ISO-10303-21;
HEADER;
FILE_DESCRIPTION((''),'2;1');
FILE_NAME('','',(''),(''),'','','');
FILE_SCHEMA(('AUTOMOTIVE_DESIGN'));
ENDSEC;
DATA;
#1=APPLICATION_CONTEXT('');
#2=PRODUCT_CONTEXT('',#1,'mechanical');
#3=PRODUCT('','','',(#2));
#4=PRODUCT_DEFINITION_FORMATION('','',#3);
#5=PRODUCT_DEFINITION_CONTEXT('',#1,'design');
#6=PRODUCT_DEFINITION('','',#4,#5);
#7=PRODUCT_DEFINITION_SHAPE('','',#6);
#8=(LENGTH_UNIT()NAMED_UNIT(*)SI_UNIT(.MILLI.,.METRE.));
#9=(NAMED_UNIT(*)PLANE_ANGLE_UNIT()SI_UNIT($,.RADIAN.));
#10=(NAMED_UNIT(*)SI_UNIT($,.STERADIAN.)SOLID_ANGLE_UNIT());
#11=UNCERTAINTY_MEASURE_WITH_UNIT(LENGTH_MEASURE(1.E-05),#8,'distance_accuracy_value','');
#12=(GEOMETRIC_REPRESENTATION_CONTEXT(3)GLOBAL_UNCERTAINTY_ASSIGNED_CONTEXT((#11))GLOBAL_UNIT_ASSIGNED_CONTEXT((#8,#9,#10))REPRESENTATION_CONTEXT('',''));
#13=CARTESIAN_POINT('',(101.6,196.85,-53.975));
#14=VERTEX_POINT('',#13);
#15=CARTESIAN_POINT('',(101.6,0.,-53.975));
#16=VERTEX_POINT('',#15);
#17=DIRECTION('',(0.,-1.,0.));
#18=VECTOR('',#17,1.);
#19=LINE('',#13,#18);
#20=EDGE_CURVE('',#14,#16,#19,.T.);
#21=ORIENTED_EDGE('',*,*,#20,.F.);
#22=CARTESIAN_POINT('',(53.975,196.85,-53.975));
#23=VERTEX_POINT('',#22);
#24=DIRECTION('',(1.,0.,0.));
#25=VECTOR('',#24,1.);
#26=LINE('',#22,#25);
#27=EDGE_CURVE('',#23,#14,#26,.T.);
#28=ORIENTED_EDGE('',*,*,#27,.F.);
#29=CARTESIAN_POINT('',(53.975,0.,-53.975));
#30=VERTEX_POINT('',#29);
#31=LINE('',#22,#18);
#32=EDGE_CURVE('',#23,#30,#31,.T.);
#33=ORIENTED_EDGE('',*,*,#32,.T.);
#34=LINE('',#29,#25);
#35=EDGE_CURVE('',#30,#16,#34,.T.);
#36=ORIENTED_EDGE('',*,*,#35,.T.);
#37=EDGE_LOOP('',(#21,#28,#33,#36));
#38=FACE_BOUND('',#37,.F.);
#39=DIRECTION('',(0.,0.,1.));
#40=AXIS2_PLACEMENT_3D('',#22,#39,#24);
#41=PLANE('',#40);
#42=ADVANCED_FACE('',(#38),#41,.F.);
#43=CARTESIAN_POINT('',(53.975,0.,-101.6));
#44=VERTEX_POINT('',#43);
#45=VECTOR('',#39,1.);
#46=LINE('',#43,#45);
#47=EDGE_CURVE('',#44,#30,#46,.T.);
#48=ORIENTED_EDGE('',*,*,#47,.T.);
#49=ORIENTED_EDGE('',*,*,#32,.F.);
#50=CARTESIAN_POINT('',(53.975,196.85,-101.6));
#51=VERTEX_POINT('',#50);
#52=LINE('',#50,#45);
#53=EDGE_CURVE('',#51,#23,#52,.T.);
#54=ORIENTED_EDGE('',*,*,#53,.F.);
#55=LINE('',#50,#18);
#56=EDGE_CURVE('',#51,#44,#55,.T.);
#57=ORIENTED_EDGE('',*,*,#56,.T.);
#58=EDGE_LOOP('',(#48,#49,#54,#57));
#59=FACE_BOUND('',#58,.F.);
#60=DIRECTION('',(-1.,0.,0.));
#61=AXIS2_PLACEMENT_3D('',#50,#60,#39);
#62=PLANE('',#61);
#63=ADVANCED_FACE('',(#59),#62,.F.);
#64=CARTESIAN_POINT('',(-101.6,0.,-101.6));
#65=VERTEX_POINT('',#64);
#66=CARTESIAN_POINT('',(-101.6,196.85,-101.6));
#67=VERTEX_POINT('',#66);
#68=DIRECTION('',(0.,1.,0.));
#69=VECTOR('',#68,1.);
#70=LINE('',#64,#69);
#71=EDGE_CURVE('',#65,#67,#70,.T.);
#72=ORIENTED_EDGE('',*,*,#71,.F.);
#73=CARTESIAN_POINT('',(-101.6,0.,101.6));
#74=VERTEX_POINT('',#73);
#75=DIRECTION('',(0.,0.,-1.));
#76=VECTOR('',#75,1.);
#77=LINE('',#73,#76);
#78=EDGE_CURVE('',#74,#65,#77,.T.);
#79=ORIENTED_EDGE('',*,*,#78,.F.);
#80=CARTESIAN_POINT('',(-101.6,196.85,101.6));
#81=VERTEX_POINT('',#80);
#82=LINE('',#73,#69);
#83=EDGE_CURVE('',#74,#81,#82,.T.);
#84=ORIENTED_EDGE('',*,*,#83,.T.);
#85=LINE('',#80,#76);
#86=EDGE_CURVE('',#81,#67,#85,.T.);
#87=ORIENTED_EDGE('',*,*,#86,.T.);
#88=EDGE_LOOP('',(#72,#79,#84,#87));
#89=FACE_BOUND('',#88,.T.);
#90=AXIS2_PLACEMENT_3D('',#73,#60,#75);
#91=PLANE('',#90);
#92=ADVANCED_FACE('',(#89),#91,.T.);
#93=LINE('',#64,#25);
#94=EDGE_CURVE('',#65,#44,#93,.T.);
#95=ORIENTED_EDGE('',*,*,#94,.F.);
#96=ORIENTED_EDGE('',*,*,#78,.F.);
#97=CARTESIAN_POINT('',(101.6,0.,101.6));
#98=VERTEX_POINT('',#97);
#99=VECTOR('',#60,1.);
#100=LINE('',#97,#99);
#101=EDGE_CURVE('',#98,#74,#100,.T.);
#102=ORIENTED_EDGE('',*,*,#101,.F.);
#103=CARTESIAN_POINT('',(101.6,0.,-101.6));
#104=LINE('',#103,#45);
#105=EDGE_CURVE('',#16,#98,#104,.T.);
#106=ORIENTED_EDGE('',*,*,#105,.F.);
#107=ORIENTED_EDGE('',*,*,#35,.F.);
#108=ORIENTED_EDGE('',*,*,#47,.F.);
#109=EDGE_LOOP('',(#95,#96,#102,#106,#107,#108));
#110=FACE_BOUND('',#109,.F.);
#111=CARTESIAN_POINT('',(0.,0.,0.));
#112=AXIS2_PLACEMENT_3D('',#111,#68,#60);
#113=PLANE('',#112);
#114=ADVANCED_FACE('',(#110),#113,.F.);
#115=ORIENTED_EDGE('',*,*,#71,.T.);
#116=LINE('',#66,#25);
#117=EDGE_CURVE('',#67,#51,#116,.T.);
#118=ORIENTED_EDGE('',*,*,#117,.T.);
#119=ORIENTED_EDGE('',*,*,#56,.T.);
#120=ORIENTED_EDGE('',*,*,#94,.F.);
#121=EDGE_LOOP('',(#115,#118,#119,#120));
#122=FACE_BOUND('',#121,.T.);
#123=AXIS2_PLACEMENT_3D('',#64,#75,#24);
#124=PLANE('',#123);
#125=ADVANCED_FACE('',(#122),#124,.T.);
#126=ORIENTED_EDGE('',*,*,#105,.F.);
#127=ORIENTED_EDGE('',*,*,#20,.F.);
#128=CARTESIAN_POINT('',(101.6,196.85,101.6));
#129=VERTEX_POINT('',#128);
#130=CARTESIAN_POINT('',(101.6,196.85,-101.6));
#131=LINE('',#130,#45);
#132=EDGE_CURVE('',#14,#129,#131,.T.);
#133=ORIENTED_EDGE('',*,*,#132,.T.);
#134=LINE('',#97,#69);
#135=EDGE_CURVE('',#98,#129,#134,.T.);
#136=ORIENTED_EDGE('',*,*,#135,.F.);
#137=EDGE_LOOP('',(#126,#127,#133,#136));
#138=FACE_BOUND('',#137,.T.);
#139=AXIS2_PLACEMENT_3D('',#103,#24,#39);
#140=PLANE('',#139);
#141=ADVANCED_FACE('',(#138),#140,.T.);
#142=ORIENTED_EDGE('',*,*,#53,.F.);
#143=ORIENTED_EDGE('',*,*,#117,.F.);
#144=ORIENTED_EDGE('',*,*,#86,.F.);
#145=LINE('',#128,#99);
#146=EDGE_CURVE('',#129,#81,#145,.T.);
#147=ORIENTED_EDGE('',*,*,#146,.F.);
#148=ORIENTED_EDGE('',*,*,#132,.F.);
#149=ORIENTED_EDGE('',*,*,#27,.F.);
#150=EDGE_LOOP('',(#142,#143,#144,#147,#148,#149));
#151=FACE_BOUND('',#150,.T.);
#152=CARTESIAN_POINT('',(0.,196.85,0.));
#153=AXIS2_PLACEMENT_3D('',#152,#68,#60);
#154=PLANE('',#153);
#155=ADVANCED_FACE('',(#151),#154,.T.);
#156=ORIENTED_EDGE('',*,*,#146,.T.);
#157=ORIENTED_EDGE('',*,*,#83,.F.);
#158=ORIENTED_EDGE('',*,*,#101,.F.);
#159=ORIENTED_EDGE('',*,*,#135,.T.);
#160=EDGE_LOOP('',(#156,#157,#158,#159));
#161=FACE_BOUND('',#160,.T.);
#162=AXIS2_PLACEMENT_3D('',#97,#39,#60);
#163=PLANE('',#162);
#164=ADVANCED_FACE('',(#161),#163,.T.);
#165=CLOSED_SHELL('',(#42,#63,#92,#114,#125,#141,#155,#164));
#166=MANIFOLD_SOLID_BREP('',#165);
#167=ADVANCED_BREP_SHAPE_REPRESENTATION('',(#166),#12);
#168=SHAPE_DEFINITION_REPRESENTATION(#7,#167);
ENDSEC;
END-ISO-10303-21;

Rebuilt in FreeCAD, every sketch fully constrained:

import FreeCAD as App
import Part
import Sketcher
from FreeCAD import Vector
Q = App.Units.Quantity

doc = App.newDocument("Part")
body = doc.addObject("PartDesign::Body", "Body")

# Sketch on XZ plane
sketch1 = body.newObject("Sketcher::SketchObject", "Sketch")
sketch1.AttachmentSupport = (doc.getObject("XZ_Plane"), [""])
sketch1.MapMode = "FlatFace"
sketch1.addGeometry([
    Part.LineSegment(Vector(102, -102, 0), Vector(-102, -102, 0)),
    Part.LineSegment(Vector(-102, -102, 0), Vector(-102, 102, 0)),
    Part.LineSegment(Vector(-102, 102, 0), Vector(102, 102, 0)),
    Part.LineSegment(Vector(102, 102, 0), Vector(102, -102, 0)),
], False)
sketch1.addConstraint([
    Sketcher.Constraint("Coincident", 0, 2, 1, 1),
    Sketcher.Constraint("Coincident", 1, 2, 2, 1),
    Sketcher.Constraint("Coincident", 2, 2, 3, 1),
    Sketcher.Constraint("Coincident", 3, 2, 0, 1),
    Sketcher.Constraint("Horizontal", 0),
    Sketcher.Constraint("Vertical", 1),
    Sketcher.Constraint("Horizontal", 2),
    Sketcher.Constraint("Vertical", 3),
    Sketcher.Constraint("Symmetric", 0, 2, 2, 2, -1, 1),
    Sketcher.Constraint("Equal", 2, 1),
    Sketcher.Constraint("DistanceX", 0, 2, 0, 1, Q("8 in")),
])
pad1 = body.newObject("PartDesign::Pad", "Pad")
pad1.Profile = sketch1
pad1.Length = Q("7.75 in")
pad1.Reversed = True

# Sketch on XZ plane
sketch2 = body.newObject("Sketcher::SketchObject", "Sketch001")
sketch2.AttachmentSupport = (doc.getObject("XZ_Plane"), [""])
sketch2.MapMode = "FlatFace"
sketch2.AttachmentOffset = App.Placement(Vector(0, 0, -7.75 * 25.4), App.Rotation())
sketch2.addGeometry([
    Part.LineSegment(Vector(54, -54, 0), Vector(102, -54, 0)),
    Part.LineSegment(Vector(102, -54, 0), Vector(102, -102, 0)),
    Part.LineSegment(Vector(102, -102, 0), Vector(54, -102, 0)),
    Part.LineSegment(Vector(54, -102, 0), Vector(54, -54, 0)),
], False)
sketch2.addConstraint([
    Sketcher.Constraint("Coincident", 0, 2, 1, 1),
    Sketcher.Constraint("Coincident", 1, 2, 2, 1),
    Sketcher.Constraint("Coincident", 2, 2, 3, 1),
    Sketcher.Constraint("Coincident", 3, 2, 0, 1),
    Sketcher.Constraint("Horizontal", 0),
    Sketcher.Constraint("Vertical", 1),
    Sketcher.Constraint("Horizontal", 2),
    Sketcher.Constraint("Vertical", 3),
    Sketcher.Constraint("Equal", 2, 1),
    Sketcher.Constraint("DistanceX", 0, 1, 0, 2, Q("1.875 in")),
    Sketcher.Constraint("DistanceX", -1, 1, 0, 2, Q("4 in")),
    Sketcher.Constraint("DistanceY", 1, 2, -1, 1, Q("4 in")),
])
pocket1 = body.newObject("PartDesign::Pocket", "Pocket")
pocket1.Profile = sketch2
pocket1.Length = Q("7.75 in")
pocket1.Reversed = True

doc.recompute()
